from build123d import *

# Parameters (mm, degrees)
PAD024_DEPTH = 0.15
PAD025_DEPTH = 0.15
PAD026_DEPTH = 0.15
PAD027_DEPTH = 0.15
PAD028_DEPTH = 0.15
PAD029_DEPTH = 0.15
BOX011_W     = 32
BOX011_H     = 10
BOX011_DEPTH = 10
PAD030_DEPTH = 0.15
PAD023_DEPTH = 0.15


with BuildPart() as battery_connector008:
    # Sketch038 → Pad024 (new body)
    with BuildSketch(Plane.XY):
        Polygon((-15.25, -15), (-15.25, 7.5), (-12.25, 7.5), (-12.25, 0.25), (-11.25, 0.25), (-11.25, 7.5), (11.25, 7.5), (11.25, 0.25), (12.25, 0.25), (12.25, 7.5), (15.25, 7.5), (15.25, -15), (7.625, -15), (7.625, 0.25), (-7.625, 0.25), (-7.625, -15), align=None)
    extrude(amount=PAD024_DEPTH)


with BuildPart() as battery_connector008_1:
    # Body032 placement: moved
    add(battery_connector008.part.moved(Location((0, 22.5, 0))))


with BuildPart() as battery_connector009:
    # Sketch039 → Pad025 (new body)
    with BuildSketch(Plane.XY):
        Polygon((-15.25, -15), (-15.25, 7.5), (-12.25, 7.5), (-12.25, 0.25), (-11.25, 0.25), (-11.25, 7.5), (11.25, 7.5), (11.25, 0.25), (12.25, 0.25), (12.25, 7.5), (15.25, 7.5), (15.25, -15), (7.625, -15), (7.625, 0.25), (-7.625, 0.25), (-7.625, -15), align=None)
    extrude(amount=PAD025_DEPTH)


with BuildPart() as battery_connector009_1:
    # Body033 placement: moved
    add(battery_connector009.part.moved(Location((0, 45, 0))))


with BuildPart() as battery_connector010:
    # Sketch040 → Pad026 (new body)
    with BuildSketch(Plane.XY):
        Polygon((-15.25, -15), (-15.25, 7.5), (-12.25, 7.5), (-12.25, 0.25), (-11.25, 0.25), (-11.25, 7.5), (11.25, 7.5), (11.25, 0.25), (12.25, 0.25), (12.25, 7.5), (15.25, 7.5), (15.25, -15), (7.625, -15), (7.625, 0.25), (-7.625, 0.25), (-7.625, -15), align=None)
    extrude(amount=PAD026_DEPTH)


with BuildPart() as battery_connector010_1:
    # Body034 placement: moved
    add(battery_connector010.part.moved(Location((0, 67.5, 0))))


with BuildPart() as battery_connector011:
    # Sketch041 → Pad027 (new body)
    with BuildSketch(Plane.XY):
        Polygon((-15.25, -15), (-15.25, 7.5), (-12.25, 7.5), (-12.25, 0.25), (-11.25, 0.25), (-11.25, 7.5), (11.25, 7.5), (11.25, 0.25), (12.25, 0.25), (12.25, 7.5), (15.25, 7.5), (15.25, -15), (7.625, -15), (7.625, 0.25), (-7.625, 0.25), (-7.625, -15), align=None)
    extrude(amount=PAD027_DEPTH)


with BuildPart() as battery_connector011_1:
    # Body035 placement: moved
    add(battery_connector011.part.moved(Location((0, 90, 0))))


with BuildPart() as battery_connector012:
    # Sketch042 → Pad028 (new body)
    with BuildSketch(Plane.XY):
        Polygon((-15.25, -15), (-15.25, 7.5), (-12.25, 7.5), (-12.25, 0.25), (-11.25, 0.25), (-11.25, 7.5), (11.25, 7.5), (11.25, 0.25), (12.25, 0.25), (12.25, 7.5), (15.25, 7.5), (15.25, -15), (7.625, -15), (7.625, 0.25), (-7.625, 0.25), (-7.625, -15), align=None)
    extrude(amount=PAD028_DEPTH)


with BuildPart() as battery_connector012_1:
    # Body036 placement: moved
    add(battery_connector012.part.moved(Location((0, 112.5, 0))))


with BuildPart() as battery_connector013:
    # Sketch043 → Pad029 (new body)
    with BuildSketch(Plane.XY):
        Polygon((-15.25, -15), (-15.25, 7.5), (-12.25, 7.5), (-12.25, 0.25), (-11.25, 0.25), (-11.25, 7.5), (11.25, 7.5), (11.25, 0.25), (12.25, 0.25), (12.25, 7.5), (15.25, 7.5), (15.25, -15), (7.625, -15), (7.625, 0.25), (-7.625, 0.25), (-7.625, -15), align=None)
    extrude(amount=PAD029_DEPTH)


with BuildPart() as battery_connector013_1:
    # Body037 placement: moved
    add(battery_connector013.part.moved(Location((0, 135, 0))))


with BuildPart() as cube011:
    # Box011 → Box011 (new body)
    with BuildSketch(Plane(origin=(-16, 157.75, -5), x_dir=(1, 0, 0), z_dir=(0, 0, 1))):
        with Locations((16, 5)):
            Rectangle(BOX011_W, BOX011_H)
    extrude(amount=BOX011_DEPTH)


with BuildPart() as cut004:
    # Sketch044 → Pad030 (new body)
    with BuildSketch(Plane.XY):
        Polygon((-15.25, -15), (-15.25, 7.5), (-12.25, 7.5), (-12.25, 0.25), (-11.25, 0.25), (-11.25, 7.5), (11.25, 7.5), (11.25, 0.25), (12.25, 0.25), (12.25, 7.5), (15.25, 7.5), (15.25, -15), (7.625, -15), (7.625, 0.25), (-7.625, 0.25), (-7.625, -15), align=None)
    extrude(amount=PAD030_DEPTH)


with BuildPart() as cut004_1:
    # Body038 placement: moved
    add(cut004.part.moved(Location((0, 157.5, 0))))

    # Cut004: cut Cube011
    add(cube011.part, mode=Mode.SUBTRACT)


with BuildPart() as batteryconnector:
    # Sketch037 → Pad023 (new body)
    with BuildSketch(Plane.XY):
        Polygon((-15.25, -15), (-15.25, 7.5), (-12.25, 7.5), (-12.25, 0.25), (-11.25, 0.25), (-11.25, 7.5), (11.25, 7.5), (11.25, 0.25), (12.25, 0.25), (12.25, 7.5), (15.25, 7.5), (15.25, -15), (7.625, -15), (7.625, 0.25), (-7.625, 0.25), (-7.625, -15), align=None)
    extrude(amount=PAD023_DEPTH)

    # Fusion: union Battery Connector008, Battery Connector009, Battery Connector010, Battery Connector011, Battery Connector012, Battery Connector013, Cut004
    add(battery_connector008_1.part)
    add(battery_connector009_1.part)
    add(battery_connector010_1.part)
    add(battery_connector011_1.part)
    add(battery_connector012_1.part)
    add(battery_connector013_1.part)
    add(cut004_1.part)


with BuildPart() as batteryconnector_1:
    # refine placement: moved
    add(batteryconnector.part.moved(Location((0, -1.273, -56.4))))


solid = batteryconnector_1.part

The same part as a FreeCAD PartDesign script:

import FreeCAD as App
import Part
import Sketcher
from FreeCAD import Vector
Q = App.Units.Quantity

doc = App.newDocument("Part")
params = doc.addObject("Spreadsheet::Sheet", "Params")
for row, (alias, value) in enumerate([
    ("sketch1_width", "3 mm"),
    ("sketch1_width2", "1 mm"),
    ("sketch1_width3", "22.5 mm"),
    ("sketch1_width4", "15.25 mm"),
    ("pad1_length", "0.15 mm"),
    ("sketch2_width", "3 mm"),
    ("sketch2_width2", "1 mm"),
    ("sketch2_width3", "22.5 mm"),
    ("sketch2_width4", "15.25 mm"),
    ("pad2_length", "0.15 mm"),
    ("sketch3_width", "3 mm"),
    ("sketch3_width2", "1 mm"),
    ("sketch3_width3", "22.5 mm"),
    ("sketch3_width4", "15.25 mm"),
    ("pad3_length", "0.15 mm"),
    ("sketch4_width", "3 mm"),
    ("sketch4_width2", "1 mm"),
    ("sketch4_width3", "22.5 mm"),
    ("sketch4_width4", "15.25 mm"),
    ("pad4_length", "0.15 mm"),
    ("sketch5_width", "3 mm"),
    ("sketch5_width2", "1 mm"),
    ("sketch5_width3", "22.5 mm"),
    ("sketch5_width4", "15.25 mm"),
    ("pad5_length", "0.15 mm"),
    ("sketch6_width", "3 mm"),
    ("sketch6_width2", "1 mm"),
    ("sketch6_width3", "22.5 mm"),
    ("sketch6_width4", "15.25 mm"),
    ("pad6_length", "0.15 mm"),
    ("sketch7_width", "32 mm"),
    ("sketch7_height", "10 mm"),
    ("pad7_length", "10 mm"),
    ("sketch8_width", "3 mm"),
    ("sketch8_width2", "1 mm"),
    ("sketch8_width3", "22.5 mm"),
    ("sketch8_width4", "15.25 mm"),
    ("pad8_length", "0.15 mm"),
    ("sketch9_width", "3 mm"),
    ("sketch9_width2", "1 mm"),
    ("sketch9_width3", "22.5 mm"),
    ("sketch9_width4", "15.25 mm"),
    ("pad9_length", "0.15 mm"),
], start=1):
    params.set(f"A{row}", alias)
    params.set(f"B{row}", "=" + value)
    params.setAlias(f"B{row}", alias)

body = doc.addObject("PartDesign::Body", "Body")

# Sketch on XY plane
sketch1 = body.newObject("Sketcher::SketchObject", "Sketch")
sketch1.AttachmentSupport = (doc.getObject("XY_Plane"), [""])
sketch1.MapMode = "FlatFace"
sketch1.addGeometry(Part.LineSegment(Vector(-15.25, 7.5, 0), Vector(-15.25, -15, 0)), False)
sketch1.addGeometry(Part.LineSegment(Vector(-15.25, -15, 0), Vector(-7.625, -15, 0)), False)
sketch1.addGeometry(Part.LineSegment(Vector(-7.625, -15, 0), Vector(-7.625, 0.25, 0)), False)
sketch1.addGeometry(Part.LineSegment(Vector(-7.625, 0.25, 0), Vector(7.625, 0.25, 0)), False)
sketch1.addGeometry(Part.LineSegment(Vector(7.625, 0.25, 0), Vector(7.625, -15, 0)), False)
sketch1.addGeometry(Part.LineSegment(Vector(7.625, -15, 0), Vector(15.25, -15, 0)), False)
sketch1.addGeometry(Part.LineSegment(Vector(15.25, -15, 0), Vector(15.25, 7.5, 0)), False)
sketch1.addGeometry(Part.LineSegment(Vector(15.25, 7.5, 0), Vector(12.25, 7.5, 0)), False)
sketch1.addGeometry(Part.LineSegment(Vector(12.25, 7.5, 0), Vector(12.25, 0.25, 0)), False)
sketch1.addGeometry(Part.LineSegment(Vector(12.25, 0.25, 0), Vector(11.25, 0.25, 0)), False)
sketch1.addGeometry(Part.LineSegment(Vector(11.25, 0.25, 0), Vector(11.25, 7.5, 0)), False)
sketch1.addGeometry(Part.LineSegment(Vector(11.25, 7.5, 0), Vector(-11.25, 7.5, 0)), False)
sketch1.addGeometry(Part.LineSegment(Vector(-11.25, 7.5, 0), Vector(-11.25, 0.25, 0)), False)
sketch1.addGeometry(Part.LineSegment(Vector(-11.25, 0.25, 0), Vector(-12.25, 0.25, 0)), False)
sketch1.addGeometry(Part.LineSegment(Vector(-12.25, 0.25, 0), Vector(-12.25, 7.5, 0)), False)
sketch1.addGeometry(Part.LineSegment(Vector(-12.25, 7.5, 0), Vector(-15.25, 7.5, 0)), False)
sketch1.addConstraint(Sketcher.Constraint("Coincident", 0, 2, 1, 1))
sketch1.addConstraint(Sketcher.Constraint("Coincident", 1, 2, 2, 1))
sketch1.addConstraint(Sketcher.Constraint("Coincident", 2, 2, 3, 1))
sketch1.addConstraint(Sketcher.Constraint("Coincident", 3, 2, 4, 1))
sketch1.addConstraint(Sketcher.Constraint("Coincident", 4, 2, 5, 1))
sketch1.addConstraint(Sketcher.Constraint("Coincident", 5, 2, 6, 1))
sketch1.addConstraint(Sketcher.Constraint("Coincident", 6, 2, 7, 1))
sketch1.addConstraint(Sketcher.Constraint("Coincident", 7, 2, 8, 1))
sketch1.addConstraint(Sketcher.Constraint("Coincident", 8, 2, 9, 1))
sketch1.addConstraint(Sketcher.Constraint("Coincident", 9, 2, 10, 1))
sketch1.addConstraint(Sketcher.Constraint("Coincident", 10, 2, 11, 1))
sketch1.addConstraint(Sketcher.Constraint("Coincident", 11, 2, 12, 1))
sketch1.addConstraint(Sketcher.Constraint("Coincident", 12, 2, 13, 1))
sketch1.addConstraint(Sketcher.Constraint("Coincident", 13, 2, 14, 1))
sketch1.addConstraint(Sketcher.Constraint("Coincident", 14, 2, 15, 1))
sketch1.addConstraint(Sketcher.Constraint("Coincident", 15, 2, 0, 1))
sketch1.addConstraint(Sketcher.Constraint("Vertical", 0))
sketch1.addConstraint(Sketcher.Constraint("Horizontal", 1))
sketch1.addConstraint(Sketcher.Constraint("Vertical", 2))
sketch1.addConstraint(Sketcher.Constraint("Horizontal", 3))
sketch1.addConstraint(Sketcher.Constraint("Vertical", 4))
sketch1.addConstraint(Sketcher.Constraint("Horizontal", 5))
sketch1.addConstraint(Sketcher.Constraint("Vertical", 6))
sketch1.addConstraint(Sketcher.Constraint("Horizontal", 7))
sketch1.addConstraint(Sketcher.Constraint("Vertical", 8))
sketch1.addConstraint(Sketcher.Constraint("Horizontal", 9))
sketch1.addConstraint(Sketcher.Constraint("Vertical", 10))
sketch1.addConstraint(Sketcher.Constraint("Horizontal", 11))
sketch1.addConstraint(Sketcher.Constraint("Vertical", 12))
sketch1.addConstraint(Sketcher.Constraint("Horizontal", 13))
sketch1.addConstraint(Sketcher.Constraint("Vertical", 14))
sketch1.addConstraint(Sketcher.Constraint("Horizontal", 15))
sketch1.addConstraint(Sketcher.Constraint("Symmetric", 1, 2, 4, 2, -2))
sketch1.addConstraint(Sketcher.Constraint("Symmetric", 9, 2, 12, 2, -2))
sketch1.addConstraint(Sketcher.Constraint("Symmetric", 7, 2, 14, 2, -2))
sketch1.addConstraint(Sketcher.Constraint("Horizontal", 3, 2, 8, 2))
sketch1.addConstraint(Sketcher.Constraint("Horizontal", 7, 2, 10, 2))
sketch1.addConstraint(Sketcher.Constraint("Equal", 1, 5))
sketch1.addConstraint(Sketcher.Constraint("Equal", 11, 0))
sketch1.addConstraint(Sketcher.Constraint("Equal", 3, 2))
sketch1.addConstraint(Sketcher.Constraint("DistanceX", 7, 2, 7, 1, Q("3 mm")))
sketch1.addConstraint(Sketcher.Constraint("DistanceX", 9, 2, 9, 1, Q("1 mm")))
sketch1.addConstraint(Sketcher.Constraint("DistanceX", 11, 2, 11, 1, Q("22.5 mm")))
sketch1.addConstraint(Sketcher.Constraint("DistanceY", 0, 2, -1, 1, Q("15 mm")))
sketch1.addConstraint(Sketcher.Constraint("DistanceX", 3, 1, 3, 2, Q("15.25 mm")))
sketch1.setExpression("Constraints[40]", "Params.sketch1_width")
sketch1.setExpression("Constraints[41]", "Params.sketch1_width2")
sketch1.setExpression("Constraints[42]", "Params.sketch1_width3")
sketch1.setExpression("Constraints[44]", "Params.sketch1_width4")
pad1 = body.newObject("PartDesign::Pad", "Pad")
pad1.Profile = sketch1
pad1.setExpression("Length", "Params.pad1_length")
body2 = doc.addObject("PartDesign::Body", "Body001")
doc.recompute()

body.Placement = App.Placement(Vector(0, 22.5, 0), App.Rotation(Vector(0, 0, 1), 0))
boolean = body2.newObject("PartDesign::Boolean", "Boolean")
boolean.Type = "Fuse"
boolean.addObjects([body])
body3 = doc.addObject("PartDesign::Body", "Body002")

# Sketch on XY plane
sketch2 = body3.newObject("Sketcher::SketchObject", "Sketch001")
sketch2.AttachmentSupport = (doc.getObject("XY_Plane002"), [""])
sketch2.MapMode = "FlatFace"
sketch2.addGeometry(Part.LineSegment(Vector(-15.25, 7.5, 0), Vector(-15.25, -15, 0)), False)
sketch2.addGeometry(Part.LineSegment(Vector(-15.25, -15, 0), Vector(-7.625, -15, 0)), False)
sketch2.addGeometry(Part.LineSegment(Vector(-7.625, -15, 0), Vector(-7.625, 0.25, 0)), False)
sketch2.addGeometry(Part.LineSegment(Vector(-7.625, 0.25, 0), Vector(7.625, 0.25, 0)), False)
sketch2.addGeometry(Part.LineSegment(Vector(7.625, 0.25, 0), Vector(7.625, -15, 0)), False)
sketch2.addGeometry(Part.LineSegment(Vector(7.625, -15, 0), Vector(15.25, -15, 0)), False)
sketch2.addGeometry(Part.LineSegment(Vector(15.25, -15, 0), Vector(15.25, 7.5, 0)), False)
sketch2.addGeometry(Part.LineSegment(Vector(15.25, 7.5, 0), Vector(12.25, 7.5, 0)), False)
sketch2.addGeometry(Part.LineSegment(Vector(12.25, 7.5, 0), Vector(12.25, 0.25, 0)), False)
sketch2.addGeometry(Part.LineSegment(Vector(12.25, 0.25, 0), Vector(11.25, 0.25, 0)), False)
sketch2.addGeometry(Part.LineSegment(Vector(11.25, 0.25, 0), Vector(11.25, 7.5, 0)), False)
sketch2.addGeometry(Part.LineSegment(Vector(11.25, 7.5, 0), Vector(-11.25, 7.5, 0)), False)
sketch2.addGeometry(Part.LineSegment(Vector(-11.25, 7.5, 0), Vector(-11.25, 0.25, 0)), False)
sketch2.addGeometry(Part.LineSegment(Vector(-11.25, 0.25, 0), Vector(-12.25, 0.25, 0)), False)
sketch2.addGeometry(Part.LineSegment(Vector(-12.25, 0.25, 0), Vector(-12.25, 7.5, 0)), False)
sketch2.addGeometry(Part.LineSegment(Vector(-12.25, 7.5, 0), Vector(-15.25, 7.5, 0)), False)
sketch2.addConstraint(Sketcher.Constraint("Coincident", 0, 2, 1, 1))
sketch2.addConstraint(Sketcher.Constraint("Coincident", 1, 2, 2, 1))
sketch2.addConstraint(Sketcher.Constraint("Coincident", 2, 2, 3, 1))
sketch2.addConstraint(Sketcher.Constraint("Coincident", 3, 2, 4, 1))
sketch2.addConstraint(Sketcher.Constraint("Coincident", 4, 2, 5, 1))
sketch2.addConstraint(Sketcher.Constraint("Coincident", 5, 2, 6, 1))
sketch2.addConstraint(Sketcher.Constraint("Coincident", 6, 2, 7, 1))
sketch2.addConstraint(Sketcher.Constraint("Coincident", 7, 2, 8, 1))
sketch2.addConstraint(Sketcher.Constraint("Coincident", 8, 2, 9, 1))
sketch2.addConstraint(Sketcher.Constraint("Coincident", 9, 2, 10, 1))
sketch2.addConstraint(Sketcher.Constraint("Coincident", 10, 2, 11, 1))
sketch2.addConstraint(Sketcher.Constraint("Coincident", 11, 2, 12, 1))
sketch2.addConstraint(Sketcher.Constraint("Coincident", 12, 2, 13, 1))
sketch2.addConstraint(Sketcher.Constraint("Coincident", 13, 2, 14, 1))
sketch2.addConstraint(Sketcher.Constraint("Coincident", 14, 2, 15, 1))
sketch2.addConstraint(Sketcher.Constraint("Coincident", 15, 2, 0, 1))
sketch2.addConstraint(Sketcher.Constraint("Vertical", 0))
sketch2.addConstraint(Sketcher.Constraint("Horizontal", 1))
sketch2.addConstraint(Sketcher.Constraint("Vertical", 2))
sketch2.addConstraint(Sketcher.Constraint("Horizontal", 3))
sketch2.addConstraint(Sketcher.Constraint("Vertical", 4))
sketch2.addConstraint(Sketcher.Constraint("Horizontal", 5))
sketch2.addConstraint(Sketcher.Constraint("Vertical", 6))
sketch2.addConstraint(Sketcher.Constraint("Horizontal", 7))
sketch2.addConstraint(Sketcher.Constraint("Vertical", 8))
sketch2.addConstraint(Sketcher.Constraint("Horizontal", 9))
sketch2.addConstraint(Sketcher.Constraint("Vertical", 10))
sketch2.addConstraint(Sketcher.Constraint("Horizontal", 11))
sketch2.addConstraint(Sketcher.Constraint("Vertical", 12))
sketch2.addConstraint(Sketcher.Constraint("Horizontal", 13))
sketch2.addConstraint(Sketcher.Constraint("Vertical", 14))
sketch2.addConstraint(Sketcher.Constraint("Horizontal", 15))
sketch2.addConstraint(Sketcher.Constraint("Symmetric", 1, 2, 4, 2, -2))
sketch2.addConstraint(Sketcher.Constraint("Symmetric", 9, 2, 12, 2, -2))
sketch2.addConstraint(Sketcher.Constraint("Symmetric", 7, 2, 14, 2, -2))
sketch2.addConstraint(Sketcher.Constraint("Horizontal", 3, 2, 8, 2))
sketch2.addConstraint(Sketcher.Constraint("Horizontal", 7, 2, 10, 2))
sketch2.addConstraint(Sketcher.Constraint("Equal", 1, 5))
sketch2.addConstraint(Sketcher.Constraint("Equal", 11, 0))
sketch2.addConstraint(Sketcher.Constraint("Equal", 3, 2))
sketch2.addConstraint(Sketcher.Constraint("DistanceX", 7, 2, 7, 1, Q("3 mm")))
sketch2.addConstraint(Sketcher.Constraint("DistanceX", 9, 2, 9, 1, Q("1 mm")))
sketch2.addConstraint(Sketcher.Constraint("DistanceX", 11, 2, 11, 1, Q("22.5 mm")))
sketch2.addConstraint(Sketcher.Constraint("DistanceY", 0, 2, -1, 1, Q("15 mm")))
sketch2.addConstraint(Sketcher.Constraint("DistanceX", 3, 1, 3, 2, Q("15.25 mm")))
sketch2.setExpression("Constraints[40]", "Params.sketch2_width")
sketch2.setExpression("Constraints[41]", "Params.sketch2_width2")
sketch2.setExpression("Constraints[42]", "Params.sketch2_width3")
sketch2.setExpression("Constraints[44]", "Params.sketch2_width4")
pad2 = body3.newObject("PartDesign::Pad", "Pad001")
pad2.Profile = sketch2
pad2.setExpression("Length", "Params.pad2_length")
body4 = doc.addObject("PartDesign::Body", "Body003")
doc.recompute()

body3.Placement = App.Placement(Vector(0, 45, 0), App.Rotation(Vector(0, 0, 1), 0))
boolean2 = body4.newObject("PartDesign::Boolean", "Boolean001")
boolean2.Type = "Fuse"
boolean2.addObjects([body3])
body5 = doc.addObject("PartDesign::Body", "Body004")

# Sketch on XY plane
sketch3 = body5.newObject("Sketcher::SketchObject", "Sketch002")
sketch3.AttachmentSupport = (doc.getObject("XY_Plane004"), [""])
sketch3.MapMode = "FlatFace"
sketch3.addGeometry(Part.LineSegment(Vector(-15.25, 7.5, 0), Vector(-15.25, -15, 0)), False)
sketch3.addGeometry(Part.LineSegment(Vector(-15.25, -15, 0), Vector(-7.625, -15, 0)), False)
sketch3.addGeometry(Part.LineSegment(Vector(-7.625, -15, 0), Vector(-7.625, 0.25, 0)), False)
sketch3.addGeometry(Part.LineSegment(Vector(-7.625, 0.25, 0), Vector(7.625, 0.25, 0)), False)
sketch3.addGeometry(Part.LineSegment(Vector(7.625, 0.25, 0), Vector(7.625, -15, 0)), False)
sketch3.addGeometry(Part.LineSegment(Vector(7.625, -15, 0), Vector(15.25, -15, 0)), False)
sketch3.addGeometry(Part.LineSegment(Vector(15.25, -15, 0), Vector(15.25, 7.5, 0)), False)
sketch3.addGeometry(Part.LineSegment(Vector(15.25, 7.5, 0), Vector(12.25, 7.5, 0)), False)
sketch3.addGeometry(Part.LineSegment(Vector(12.25, 7.5, 0), Vector(12.25, 0.25, 0)), False)
sketch3.addGeometry(Part.LineSegment(Vector(12.25, 0.25, 0), Vector(11.25, 0.25, 0)), False)
sketch3.addGeometry(Part.LineSegment(Vector(11.25, 0.25, 0), Vector(11.25, 7.5, 0)), False)
sketch3.addGeometry(Part.LineSegment(Vector(11.25, 7.5, 0), Vector(-11.25, 7.5, 0)), False)
sketch3.addGeometry(Part.LineSegment(Vector(-11.25, 7.5, 0), Vector(-11.25, 0.25, 0)), False)
sketch3.addGeometry(Part.LineSegment(Vector(-11.25, 0.25, 0), Vector(-12.25, 0.25, 0)), False)
sketch3.addGeometry(Part.LineSegment(Vector(-12.25, 0.25, 0), Vector(-12.25, 7.5, 0)), False)
sketch3.addGeometry(Part.LineSegment(Vector(-12.25, 7.5, 0), Vector(-15.25, 7.5, 0)), False)
sketch3.addConstraint(Sketcher.Constraint("Coincident", 0, 2, 1, 1))
sketch3.addConstraint(Sketcher.Constraint("Coincident", 1, 2, 2, 1))
sketch3.addConstraint(Sketcher.Constraint("Coincident", 2, 2, 3, 1))
sketch3.addConstraint(Sketcher.Constraint("Coincident", 3, 2, 4, 1))
sketch3.addConstraint(Sketcher.Constraint("Coincident", 4, 2, 5, 1))
sketch3.addConstraint(Sketcher.Constraint("Coincident", 5, 2, 6, 1))
sketch3.addConstraint(Sketcher.Constraint("Coincident", 6, 2, 7, 1))
sketch3.addConstraint(Sketcher.Constraint("Coincident", 7, 2, 8, 1))
sketch3.addConstraint(Sketcher.Constraint("Coincident", 8, 2, 9, 1))
sketch3.addConstraint(Sketcher.Constraint("Coincident", 9, 2, 10, 1))
sketch3.addConstraint(Sketcher.Constraint("Coincident", 10, 2, 11, 1))
sketch3.addConstraint(Sketcher.Constraint("Coincident", 11, 2, 12, 1))
sketch3.addConstraint(Sketcher.Constraint("Coincident", 12, 2, 13, 1))
sketch3.addConstraint(Sketcher.Constraint("Coincident", 13, 2, 14, 1))
sketch3.addConstraint(Sketcher.Constraint("Coincident", 14, 2, 15, 1))
sketch3.addConstraint(Sketcher.Constraint("Coincident", 15, 2, 0, 1))
sketch3.addConstraint(Sketcher.Constraint("Vertical", 0))
sketch3.addConstraint(Sketcher.Constraint("Horizontal", 1))
sketch3.addConstraint(Sketcher.Constraint("Vertical", 2))
sketch3.addConstraint(Sketcher.Constraint("Horizontal", 3))
sketch3.addConstraint(Sketcher.Constraint("Vertical", 4))
sketch3.addConstraint(Sketcher.Constraint("Horizontal", 5))
sketch3.addConstraint(Sketcher.Constraint("Vertical", 6))
sketch3.addConstraint(Sketcher.Constraint("Horizontal", 7))
sketch3.addConstraint(Sketcher.Constraint("Vertical", 8))
sketch3.addConstraint(Sketcher.Constraint("Horizontal", 9))
sketch3.addConstraint(Sketcher.Constraint("Vertical", 10))
sketch3.addConstraint(Sketcher.Constraint("Horizontal", 11))
sketch3.addConstraint(Sketcher.Constraint("Vertical", 12))
sketch3.addConstraint(Sketcher.Constraint("Horizontal", 13))
sketch3.addConstraint(Sketcher.Constraint("Vertical", 14))
sketch3.addConstraint(Sketcher.Constraint("Horizontal", 15))
sketch3.addConstraint(Sketcher.Constraint("Symmetric", 1, 2, 4, 2, -2))
sketch3.addConstraint(Sketcher.Constraint("Symmetric", 9, 2, 12, 2, -2))
sketch3.addConstraint(Sketcher.Constraint("Symmetric", 7, 2, 14, 2, -2))
sketch3.addConstraint(Sketcher.Constraint("Horizontal", 3, 2, 8, 2))
sketch3.addConstraint(Sketcher.Constraint("Horizontal", 7, 2, 10, 2))
sketch3.addConstraint(Sketcher.Constraint("Equal", 1, 5))
sketch3.addConstraint(Sketcher.Constraint("Equal", 11, 0))
sketch3.addConstraint(Sketcher.Constraint("Equal", 3, 2))
sketch3.addConstraint(Sketcher.Constraint("DistanceX", 7, 2, 7, 1, Q("3 mm")))
sketch3.addConstraint(Sketcher.Constraint("DistanceX", 9, 2, 9, 1, Q("1 mm")))
sketch3.addConstraint(Sketcher.Constraint("DistanceX", 11, 2, 11, 1, Q("22.5 mm")))
sketch3.addConstraint(Sketcher.Constraint("DistanceY", 0, 2, -1, 1, Q("15 mm")))
sketch3.addConstraint(Sketcher.Constraint("DistanceX", 3, 1, 3, 2, Q("15.25 mm")))
sketch3.setExpression("Constraints[40]", "Params.sketch3_width")
sketch3.setExpression("Constraints[41]", "Params.sketch3_width2")
sketch3.setExpression("Constraints[42]", "Params.sketch3_width3")
sketch3.setExpression("Constraints[44]", "Params.sketch3_width4")
pad3 = body5.newObject("PartDesign::Pad", "Pad002")
pad3.Profile = sketch3
pad3.setExpression("Length", "Params.pad3_length")
body6 = doc.addObject("PartDesign::Body", "Body005")
doc.recompute()

body5.Placement = App.Placement(Vector(0, 67.5, 0), App.Rotation(Vector(0, 0, 1), 0))
boolean3 = body6.newObject("PartDesign::Boolean", "Boolean002")
boolean3.Type = "Fuse"
boolean3.addObjects([body5])
body7 = doc.addObject("PartDesign::Body", "Body006")

# Sketch on XY plane
sketch4 = body7.newObject("Sketcher::SketchObject", "Sketch003")
sketch4.AttachmentSupport = (doc.getObject("XY_Plane006"), [""])
sketch4.MapMode = "FlatFace"
sketch4.addGeometry(Part.LineSegment(Vector(-15.25, 7.5, 0), Vector(-15.25, -15, 0)), False)
sketch4.addGeometry(Part.LineSegment(Vector(-15.25, -15, 0), Vector(-7.625, -15, 0)), False)
sketch4.addGeometry(Part.LineSegment(Vector(-7.625, -15, 0), Vector(-7.625, 0.25, 0)), False)
sketch4.addGeometry(Part.LineSegment(Vector(-7.625, 0.25, 0), Vector(7.625, 0.25, 0)), False)
sketch4.addGeometry(Part.LineSegment(Vector(7.625, 0.25, 0), Vector(7.625, -15, 0)), False)
sketch4.addGeometry(Part.LineSegment(Vector(7.625, -15, 0), Vector(15.25, -15, 0)), False)
sketch4.addGeometry(Part.LineSegment(Vector(15.25, -15, 0), Vector(15.25, 7.5, 0)), False)
sketch4.addGeometry(Part.LineSegment(Vector(15.25, 7.5, 0), Vector(12.25, 7.5, 0)), False)
sketch4.addGeometry(Part.LineSegment(Vector(12.25, 7.5, 0), Vector(12.25, 0.25, 0)), False)
sketch4.addGeometry(Part.LineSegment(Vector(12.25, 0.25, 0), Vector(11.25, 0.25, 0)), False)
sketch4.addGeometry(Part.LineSegment(Vector(11.25, 0.25, 0), Vector(11.25, 7.5, 0)), False)
sketch4.addGeometry(Part.LineSegment(Vector(11.25, 7.5, 0), Vector(-11.25, 7.5, 0)), False)
sketch4.addGeometry(Part.LineSegment(Vector(-11.25, 7.5, 0), Vector(-11.25, 0.25, 0)), False)
sketch4.addGeometry(Part.LineSegment(Vector(-11.25, 0.25, 0), Vector(-12.25, 0.25, 0)), False)
sketch4.addGeometry(Part.LineSegment(Vector(-12.25, 0.25, 0), Vector(-12.25, 7.5, 0)), False)
sketch4.addGeometry(Part.LineSegment(Vector(-12.25, 7.5, 0), Vector(-15.25, 7.5, 0)), False)
sketch4.addConstraint(Sketcher.Constraint("Coincident", 0, 2, 1, 1))
sketch4.addConstraint(Sketcher.Constraint("Coincident", 1, 2, 2, 1))
sketch4.addConstraint(Sketcher.Constraint("Coincident", 2, 2, 3, 1))
sketch4.addConstraint(Sketcher.Constraint("Coincident", 3, 2, 4, 1))
sketch4.addConstraint(Sketcher.Constraint("Coincident", 4, 2, 5, 1))
sketch4.addConstraint(Sketcher.Constraint("Coincident", 5, 2, 6, 1))
sketch4.addConstraint(Sketcher.Constraint("Coincident", 6, 2, 7, 1))
sketch4.addConstraint(Sketcher.Constraint("Coincident", 7, 2, 8, 1))
sketch4.addConstraint(Sketcher.Constraint("Coincident", 8, 2, 9, 1))
sketch4.addConstraint(Sketcher.Constraint("Coincident", 9, 2, 10, 1))
sketch4.addConstraint(Sketcher.Constraint("Coincident", 10, 2, 11, 1))
sketch4.addConstraint(Sketcher.Constraint("Coincident", 11, 2, 12, 1))
sketch4.addConstraint(Sketcher.Constraint("Coincident", 12, 2, 13, 1))
sketch4.addConstraint(Sketcher.Constraint("Coincident", 13, 2, 14, 1))
sketch4.addConstraint(Sketcher.Constraint("Coincident", 14, 2, 15, 1))
sketch4.addConstraint(Sketcher.Constraint("Coincident", 15, 2, 0, 1))
sketch4.addConstraint(Sketcher.Constraint("Vertical", 0))
sketch4.addConstraint(Sketcher.Constraint("Horizontal", 1))
sketch4.addConstraint(Sketcher.Constraint("Vertical", 2))
sketch4.addConstraint(Sketcher.Constraint("Horizontal", 3))
sketch4.addConstraint(Sketcher.Constraint("Vertical", 4))
sketch4.addConstraint(Sketcher.Constraint("Horizontal", 5))
sketch4.addConstraint(Sketcher.Constraint("Vertical", 6))
sketch4.addConstraint(Sketcher.Constraint("Horizontal", 7))
sketch4.addConstraint(Sketcher.Constraint("Vertical", 8))
sketch4.addConstraint(Sketcher.Constraint("Horizontal", 9))
sketch4.addConstraint(Sketcher.Constraint("Vertical", 10))
sketch4.addConstraint(Sketcher.Constraint("Horizontal", 11))
sketch4.addConstraint(Sketcher.Constraint("Vertical", 12))
sketch4.addConstraint(Sketcher.Constraint("Horizontal", 13))
sketch4.addConstraint(Sketcher.Constraint("Vertical", 14))
sketch4.addConstraint(Sketcher.Constraint("Horizontal", 15))
sketch4.addConstraint(Sketcher.Constraint("Symmetric", 1, 2, 4, 2, -2))
sketch4.addConstraint(Sketcher.Constraint("Symmetric", 9, 2, 12, 2, -2))
sketch4.addConstraint(Sketcher.Constraint("Symmetric", 7, 2, 14, 2, -2))
sketch4.addConstraint(Sketcher.Constraint("Horizontal", 3, 2, 8, 2))
sketch4.addConstraint(Sketcher.Constraint("Horizontal", 7, 2, 10, 2))
sketch4.addConstraint(Sketcher.Constraint("Equal", 1, 5))
sketch4.addConstraint(Sketcher.Constraint("Equal", 11, 0))
sketch4.addConstraint(Sketcher.Constraint("Equal", 3, 2))
sketch4.addConstraint(Sketcher.Constraint("DistanceX", 7, 2, 7, 1, Q("3 mm")))
sketch4.addConstraint(Sketcher.Constraint("DistanceX", 9, 2, 9, 1, Q("1 mm")))
sketch4.addConstraint(Sketcher.Constraint("DistanceX", 11, 2, 11, 1, Q("22.5 mm")))
sketch4.addConstraint(Sketcher.Constraint("DistanceY", 0, 2, -1, 1, Q("15 mm")))
sketch4.addConstraint(Sketcher.Constraint("DistanceX", 3, 1, 3, 2, Q("15.25 mm")))
sketch4.setExpression("Constraints[40]", "Params.sketch4_width")
sketch4.setExpression("Constraints[41]", "Params.sketch4_width2")
sketch4.setExpression("Constraints[42]", "Params.sketch4_width3")
sketch4.setExpression("Constraints[44]", "Params.sketch4_width4")
pad4 = body7.newObject("PartDesign::Pad", "Pad003")
pad4.Profile = sketch4
pad4.setExpression("Length", "Params.pad4_length")
body8 = doc.addObject("PartDesign::Body", "Body007")
doc.recompute()

body7.Placement = App.Placement(Vector(0, 90, 0), App.Rotation(Vector(0, 0, 1), 0))
boolean4 = body8.newObject("PartDesign::Boolean", "Boolean003")
boolean4.Type = "Fuse"
boolean4.addObjects([body7])
body9 = doc.addObject("PartDesign::Body", "Body008")

# Sketch on XY plane
sketch5 = body9.newObject("Sketcher::SketchObject", "Sketch004")
sketch5.AttachmentSupport = (doc.getObject("XY_Plane008"), [""])
sketch5.MapMode = "FlatFace"
sketch5.addGeometry(Part.LineSegment(Vector(-15.25, 7.5, 0), Vector(-15.25, -15, 0)), False)
sketch5.addGeometry(Part.LineSegment(Vector(-15.25, -15, 0), Vector(-7.625, -15, 0)), False)
sketch5.addGeometry(Part.LineSegment(Vector(-7.625, -15, 0), Vector(-7.625, 0.25, 0)), False)
sketch5.addGeometry(Part.LineSegment(Vector(-7.625, 0.25, 0), Vector(7.625, 0.25, 0)), False)
sketch5.addGeometry(Part.LineSegment(Vector(7.625, 0.25, 0), Vector(7.625, -15, 0)), False)
sketch5.addGeometry(Part.LineSegment(Vector(7.625, -15, 0), Vector(15.25, -15, 0)), False)
sketch5.addGeometry(Part.LineSegment(Vector(15.25, -15, 0), Vector(15.25, 7.5, 0)), False)
sketch5.addGeometry(Part.LineSegment(Vector(15.25, 7.5, 0), Vector(12.25, 7.5, 0)), False)
sketch5.addGeometry(Part.LineSegment(Vector(12.25, 7.5, 0), Vector(12.25, 0.25, 0)), False)
sketch5.addGeometry(Part.LineSegment(Vector(12.25, 0.25, 0), Vector(11.25, 0.25, 0)), False)
sketch5.addGeometry(Part.LineSegment(Vector(11.25, 0.25, 0), Vector(11.25, 7.5, 0)), False)
sketch5.addGeometry(Part.LineSegment(Vector(11.25, 7.5, 0), Vector(-11.25, 7.5, 0)), False)
sketch5.addGeometry(Part.LineSegment(Vector(-11.25, 7.5, 0), Vector(-11.25, 0.25, 0)), False)
sketch5.addGeometry(Part.LineSegment(Vector(-11.25, 0.25, 0), Vector(-12.25, 0.25, 0)), False)
sketch5.addGeometry(Part.LineSegment(Vector(-12.25, 0.25, 0), Vector(-12.25, 7.5, 0)), False)
sketch5.addGeometry(Part.LineSegment(Vector(-12.25, 7.5, 0), Vector(-15.25, 7.5, 0)), False)
sketch5.addConstraint(Sketcher.Constraint("Coincident", 0, 2, 1, 1))
sketch5.addConstraint(Sketcher.Constraint("Coincident", 1, 2, 2, 1))
sketch5.addConstraint(Sketcher.Constraint("Coincident", 2, 2, 3, 1))
sketch5.addConstraint(Sketcher.Constraint("Coincident", 3, 2, 4, 1))
sketch5.addConstraint(Sketcher.Constraint("Coincident", 4, 2, 5, 1))
sketch5.addConstraint(Sketcher.Constraint("Coincident", 5, 2, 6, 1))
sketch5.addConstraint(Sketcher.Constraint("Coincident", 6, 2, 7, 1))
sketch5.addConstraint(Sketcher.Constraint("Coincident", 7, 2, 8, 1))
sketch5.addConstraint(Sketcher.Constraint("Coincident", 8, 2, 9, 1))
sketch5.addConstraint(Sketcher.Constraint("Coincident", 9, 2, 10, 1))
sketch5.addConstraint(Sketcher.Constraint("Coincident", 10, 2, 11, 1))
sketch5.addConstraint(Sketcher.Constraint("Coincident", 11, 2, 12, 1))
sketch5.addConstraint(Sketcher.Constraint("Coincident", 12, 2, 13, 1))
sketch5.addConstraint(Sketcher.Constraint("Coincident", 13, 2, 14, 1))
sketch5.addConstraint(Sketcher.Constraint("Coincident", 14, 2, 15, 1))
sketch5.addConstraint(Sketcher.Constraint("Coincident", 15, 2, 0, 1))
sketch5.addConstraint(Sketcher.Constraint("Vertical", 0))
sketch5.addConstraint(Sketcher.Constraint("Horizontal", 1))
sketch5.addConstraint(Sketcher.Constraint("Vertical", 2))
sketch5.addConstraint(Sketcher.Constraint("Horizontal", 3))
sketch5.addConstraint(Sketcher.Constraint("Vertical", 4))
sketch5.addConstraint(Sketcher.Constraint("Horizontal", 5))
sketch5.addConstraint(Sketcher.Constraint("Vertical", 6))
sketch5.addConstraint(Sketcher.Constraint("Horizontal", 7))
sketch5.addConstraint(Sketcher.Constraint("Vertical", 8))
sketch5.addConstraint(Sketcher.Constraint("Horizontal", 9))
sketch5.addConstraint(Sketcher.Constraint("Vertical", 10))
sketch5.addConstraint(Sketcher.Constraint("Horizontal", 11))
sketch5.addConstraint(Sketcher.Constraint("Vertical", 12))
sketch5.addConstraint(Sketcher.Constraint("Horizontal", 13))
sketch5.addConstraint(Sketcher.Constraint("Vertical", 14))
sketch5.addConstraint(Sketcher.Constraint("Horizontal", 15))
sketch5.addConstraint(Sketcher.Constraint("Symmetric", 1, 2, 4, 2, -2))
sketch5.addConstraint(Sketcher.Constraint("Symmetric", 9, 2, 12, 2, -2))
sketch5.addConstraint(Sketcher.Constraint("Symmetric", 7, 2, 14, 2, -2))
sketch5.addConstraint(Sketcher.Constraint("Horizontal", 3, 2, 8, 2))
sketch5.addConstraint(Sketcher.Constraint("Horizontal", 7, 2, 10, 2))
sketch5.addConstraint(Sketcher.Constraint("Equal", 1, 5))
sketch5.addConstraint(Sketcher.Constraint("Equal", 11, 0))
sketch5.addConstraint(Sketcher.Constraint("Equal", 3, 2))
sketch5.addConstraint(Sketcher.Constraint("DistanceX", 7, 2, 7, 1, Q("3 mm")))
sketch5.addConstraint(Sketcher.Constraint("DistanceX", 9, 2, 9, 1, Q("1 mm")))
sketch5.addConstraint(Sketcher.Constraint("DistanceX", 11, 2, 11, 1, Q("22.5 mm")))
sketch5.addConstraint(Sketcher.Constraint("DistanceY", 0, 2, -1, 1, Q("15 mm")))
sketch5.addConstraint(Sketcher.Constraint("DistanceX", 3, 1, 3, 2, Q("15.25 mm")))
sketch5.setExpression("Constraints[40]", "Params.sketch5_width")
sketch5.setExpression("Constraints[41]", "Params.sketch5_width2")
sketch5.setExpression("Constraints[42]", "Params.sketch5_width3")
sketch5.setExpression("Constraints[44]", "Params.sketch5_width4")
pad5 = body9.newObject("PartDesign::Pad", "Pad004")
pad5.Profile = sketch5
pad5.setExpression("Length", "Params.pad5_length")
body10 = doc.addObject("PartDesign::Body", "Body009")
doc.recompute()

body9.Placement = App.Placement(Vector(0, 112.5, 0), App.Rotation(Vector(0, 0, 1), 0))
boolean5 = body10.newObject("PartDesign::Boolean", "Boolean004")
boolean5.Type = "Fuse"
boolean5.addObjects([body9])
body11 = doc.addObject("PartDesign::Body", "Body010")

# Sketch on XY plane
sketch6 = body11.newObject("Sketcher::SketchObject", "Sketch005")
sketch6.AttachmentSupport = (doc.getObject("XY_Plane010"), [""])
sketch6.MapMode = "FlatFace"
sketch6.addGeometry(Part.LineSegment(Vector(-15.25, 7.5, 0), Vector(-15.25, -15, 0)), False)
sketch6.addGeometry(Part.LineSegment(Vector(-15.25, -15, 0), Vector(-7.625, -15, 0)), False)
sketch6.addGeometry(Part.LineSegment(Vector(-7.625, -15, 0), Vector(-7.625, 0.25, 0)), False)
sketch6.addGeometry(Part.LineSegment(Vector(-7.625, 0.25, 0), Vector(7.625, 0.25, 0)), False)
sketch6.addGeometry(Part.LineSegment(Vector(7.625, 0.25, 0), Vector(7.625, -15, 0)), False)
sketch6.addGeometry(Part.LineSegment(Vector(7.625, -15, 0), Vector(15.25, -15, 0)), False)
sketch6.addGeometry(Part.LineSegment(Vector(15.25, -15, 0), Vector(15.25, 7.5, 0)), False)
sketch6.addGeometry(Part.LineSegment(Vector(15.25, 7.5, 0), Vector(12.25, 7.5, 0)), False)
sketch6.addGeometry(Part.LineSegment(Vector(12.25, 7.5, 0), Vector(12.25, 0.25, 0)), False)
sketch6.addGeometry(Part.LineSegment(Vector(12.25, 0.25, 0), Vector(11.25, 0.25, 0)), False)
sketch6.addGeometry(Part.LineSegment(Vector(11.25, 0.25, 0), Vector(11.25, 7.5, 0)), False)
sketch6.addGeometry(Part.LineSegment(Vector(11.25, 7.5, 0), Vector(-11.25, 7.5, 0)), False)
sketch6.addGeometry(Part.LineSegment(Vector(-11.25, 7.5, 0), Vector(-11.25, 0.25, 0)), False)
sketch6.addGeometry(Part.LineSegment(Vector(-11.25, 0.25, 0), Vector(-12.25, 0.25, 0)), False)
sketch6.addGeometry(Part.LineSegment(Vector(-12.25, 0.25, 0), Vector(-12.25, 7.5, 0)), False)
sketch6.addGeometry(Part.LineSegment(Vector(-12.25, 7.5, 0), Vector(-15.25, 7.5, 0)), False)
sketch6.addConstraint(Sketcher.Constraint("Coincident", 0, 2, 1, 1))
sketch6.addConstraint(Sketcher.Constraint("Coincident", 1, 2, 2, 1))
sketch6.addConstraint(Sketcher.Constraint("Coincident", 2, 2, 3, 1))
sketch6.addConstraint(Sketcher.Constraint("Coincident", 3, 2, 4, 1))
sketch6.addConstraint(Sketcher.Constraint("Coincident", 4, 2, 5, 1))
sketch6.addConstraint(Sketcher.Constraint("Coincident", 5, 2, 6, 1))
sketch6.addConstraint(Sketcher.Constraint("Coincident", 6, 2, 7, 1))
sketch6.addConstraint(Sketcher.Constraint("Coincident", 7, 2, 8, 1))
sketch6.addConstraint(Sketcher.Constraint("Coincident", 8, 2, 9, 1))
sketch6.addConstraint(Sketcher.Constraint("Coincident", 9, 2, 10, 1))
sketch6.addConstraint(Sketcher.Constraint("Coincident", 10, 2, 11, 1))
sketch6.addConstraint(Sketcher.Constraint("Coincident", 11, 2, 12, 1))
sketch6.addConstraint(Sketcher.Constraint("Coincident", 12, 2, 13, 1))
sketch6.addConstraint(Sketcher.Constraint("Coincident", 13, 2, 14, 1))
sketch6.addConstraint(Sketcher.Constraint("Coincident", 14, 2, 15, 1))
sketch6.addConstraint(Sketcher.Constraint("Coincident", 15, 2, 0, 1))
sketch6.addConstraint(Sketcher.Constraint("Vertical", 0))
sketch6.addConstraint(Sketcher.Constraint("Horizontal", 1))
sketch6.addConstraint(Sketcher.Constraint("Vertical", 2))
sketch6.addConstraint(Sketcher.Constraint("Horizontal", 3))
sketch6.addConstraint(Sketcher.Constraint("Vertical", 4))
sketch6.addConstraint(Sketcher.Constraint("Horizontal", 5))
sketch6.addConstraint(Sketcher.Constraint("Vertical", 6))
sketch6.addConstraint(Sketcher.Constraint("Horizontal", 7))
sketch6.addConstraint(Sketcher.Constraint("Vertical", 8))
sketch6.addConstraint(Sketcher.Constraint("Horizontal", 9))
sketch6.addConstraint(Sketcher.Constraint("Vertical", 10))
sketch6.addConstraint(Sketcher.Constraint("Horizontal", 11))
sketch6.addConstraint(Sketcher.Constraint("Vertical", 12))
sketch6.addConstraint(Sketcher.Constraint("Horizontal", 13))
sketch6.addConstraint(Sketcher.Constraint("Vertical", 14))
sketch6.addConstraint(Sketcher.Constraint("Horizontal", 15))
sketch6.addConstraint(Sketcher.Constraint("Symmetric", 1, 2, 4, 2, -2))
sketch6.addConstraint(Sketcher.Constraint("Symmetric", 9, 2, 12, 2, -2))
sketch6.addConstraint(Sketcher.Constraint("Symmetric", 7, 2, 14, 2, -2))
sketch6.addConstraint(Sketcher.Constraint("Horizontal", 3, 2, 8, 2))
sketch6.addConstraint(Sketcher.Constraint("Horizontal", 7, 2, 10, 2))
sketch6.addConstraint(Sketcher.Constraint("Equal", 1, 5))
sketch6.addConstraint(Sketcher.Constraint("Equal", 11, 0))
sketch6.addConstraint(Sketcher.Constraint("Equal", 3, 2))
sketch6.addConstraint(Sketcher.Constraint("DistanceX", 7, 2, 7, 1, Q("3 mm")))
sketch6.addConstraint(Sketcher.Constraint("DistanceX", 9, 2, 9, 1, Q("1 mm")))
sketch6.addConstraint(Sketcher.Constraint("DistanceX", 11, 2, 11, 1, Q("22.5 mm")))
sketch6.addConstraint(Sketcher.Constraint("DistanceY", 0, 2, -1, 1, Q("15 mm")))
sketch6.addConstraint(Sketcher.Constraint("DistanceX", 3, 1, 3, 2, Q("15.25 mm")))
sketch6.setExpression("Constraints[40]", "Params.sketch6_width")
sketch6.setExpression("Constraints[41]", "Params.sketch6_width2")
sketch6.setExpression("Constraints[42]", "Params.sketch6_width3")
sketch6.setExpression("Constraints[44]", "Params.sketch6_width4")
pad6 = body11.newObject("PartDesign::Pad", "Pad005")
pad6.Profile = sketch6
pad6.setExpression("Length", "Params.pad6_length")
body12 = doc.addObject("PartDesign::Body", "Body011")
doc.recompute()

body11.Placement = App.Placement(Vector(0, 135, 0), App.Rotation(Vector(0, 0, 1), 0))
boolean6 = body12.newObject("PartDesign::Boolean", "Boolean005")
boolean6.Type = "Fuse"
boolean6.addObjects([body11])
body13 = doc.addObject("PartDesign::Body", "Body012")

# Sketch on XY plane
sketch7 = body13.newObject("Sketcher::SketchObject", "Sketch006")
sketch7.AttachmentSupport = (doc.getObject("XY_Plane012"), [""])
sketch7.MapMode = "FlatFace"
sketch7.AttachmentOffset = App.Placement(Vector(0, 0, -5), App.Rotation())
sketch7.addGeometry(Part.LineSegment(Vector(-16, 167.75, 0), Vector(-16, 157.75, 0)), False)
sketch7.addGeometry(Part.LineSegment(Vector(-16, 157.75, 0), Vector(16, 157.75, 0)), False)
sketch7.addGeometry(Part.LineSegment(Vector(16, 157.75, 0), Vector(16, 167.75, 0)), False)
sketch7.addGeometry(Part.LineSegment(Vector(16, 167.75, 0), Vector(-16, 167.75, 0)), False)
sketch7.addConstraint(Sketcher.Constraint("Coincident", 0, 2, 1, 1))
sketch7.addConstraint(Sketcher.Constraint("Coincident", 1, 2, 2, 1))
sketch7.addConstraint(Sketcher.Constraint("Coincident", 2, 2, 3, 1))
sketch7.addConstraint(Sketcher.Constraint("Coincident", 3, 2, 0, 1))
sketch7.addConstraint(Sketcher.Constraint("Vertical", 0))
sketch7.addConstraint(Sketcher.Constraint("Horizontal", 1))
sketch7.addConstraint(Sketcher.Constraint("Vertical", 2))
sketch7.addConstraint(Sketcher.Constraint("Horizontal", 3))
sketch7.addConstraint(Sketcher.Constraint("DistanceX", 1, 1, 1, 2, Q("32 mm")))
sketch7.addConstraint(Sketcher.Constraint("DistanceY", 0, 2, 0, 1, Q("10 mm")))
sketch7.addConstraint(Sketcher.Constraint("DistanceX", 0, 2, -1, 1, Q("16 mm")))
sketch7.addConstraint(Sketcher.Constraint("DistanceY", -1, 1, 0, 2, Q("157.75 mm")))
sketch7.setExpression("Constraints[8]", "Params.sketch7_width")
sketch7.setExpression("Constraints[9]", "Params.sketch7_height")
pad7 = body13.newObject("PartDesign::Pad", "Pad006")
pad7.Profile = sketch7
pad7.setExpression("Length", "Params.pad7_length")
body14 = doc.addObject("PartDesign::Body", "Body013")

# Sketch on XY plane
sketch8 = body14.newObject("Sketcher::SketchObject", "Sketch007")
sketch8.AttachmentSupport = (doc.getObject("XY_Plane013"), [""])
sketch8.MapMode = "FlatFace"
sketch8.addGeometry(Part.LineSegment(Vector(-15.25, 7.5, 0), Vector(-15.25, -15, 0)), False)
sketch8.addGeometry(Part.LineSegment(Vector(-15.25, -15, 0), Vector(-7.625, -15, 0)), False)
sketch8.addGeometry(Part.LineSegment(Vector(-7.625, -15, 0), Vector(-7.625, 0.25, 0)), False)
sketch8.addGeometry(Part.LineSegment(Vector(-7.625, 0.25, 0), Vector(7.625, 0.25, 0)), False)
sketch8.addGeometry(Part.LineSegment(Vector(7.625, 0.25, 0), Vector(7.625, -15, 0)), False)
sketch8.addGeometry(Part.LineSegment(Vector(7.625, -15, 0), Vector(15.25, -15, 0)), False)
sketch8.addGeometry(Part.LineSegment(Vector(15.25, -15, 0), Vector(15.25, 7.5, 0)), False)
sketch8.addGeometry(Part.LineSegment(Vector(15.25, 7.5, 0), Vector(12.25, 7.5, 0)), False)
sketch8.addGeometry(Part.LineSegment(Vector(12.25, 7.5, 0), Vector(12.25, 0.25, 0)), False)
sketch8.addGeometry(Part.LineSegment(Vector(12.25, 0.25, 0), Vector(11.25, 0.25, 0)), False)
sketch8.addGeometry(Part.LineSegment(Vector(11.25, 0.25, 0), Vector(11.25, 7.5, 0)), False)
sketch8.addGeometry(Part.LineSegment(Vector(11.25, 7.5, 0), Vector(-11.25, 7.5, 0)), False)
sketch8.addGeometry(Part.LineSegment(Vector(-11.25, 7.5, 0), Vector(-11.25, 0.25, 0)), False)
sketch8.addGeometry(Part.LineSegment(Vector(-11.25, 0.25, 0), Vector(-12.25, 0.25, 0)), False)
sketch8.addGeometry(Part.LineSegment(Vector(-12.25, 0.25, 0), Vector(-12.25, 7.5, 0)), False)
sketch8.addGeometry(Part.LineSegment(Vector(-12.25, 7.5, 0), Vector(-15.25, 7.5, 0)), False)
sketch8.addConstraint(Sketcher.Constraint("Coincident", 0, 2, 1, 1))
sketch8.addConstraint(Sketcher.Constraint("Coincident", 1, 2, 2, 1))
sketch8.addConstraint(Sketcher.Constraint("Coincident", 2, 2, 3, 1))
sketch8.addConstraint(Sketcher.Constraint("Coincident", 3, 2, 4, 1))
sketch8.addConstraint(Sketcher.Constraint("Coincident", 4, 2, 5, 1))
sketch8.addConstraint(Sketcher.Constraint("Coincident", 5, 2, 6, 1))
sketch8.addConstraint(Sketcher.Constraint("Coincident", 6, 2, 7, 1))
sketch8.addConstraint(Sketcher.Constraint("Coincident", 7, 2, 8, 1))
sketch8.addConstraint(Sketcher.Constraint("Coincident", 8, 2, 9, 1))
sketch8.addConstraint(Sketcher.Constraint("Coincident", 9, 2, 10, 1))
sketch8.addConstraint(Sketcher.Constraint("Coincident", 10, 2, 11, 1))
sketch8.addConstraint(Sketcher.Constraint("Coincident", 11, 2, 12, 1))
sketch8.addConstraint(Sketcher.Constraint("Coincident", 12, 2, 13, 1))
sketch8.addConstraint(Sketcher.Constraint("Coincident", 13, 2, 14, 1))
sketch8.addConstraint(Sketcher.Constraint("Coincident", 14, 2, 15, 1))
sketch8.addConstraint(Sketcher.Constraint("Coincident", 15, 2, 0, 1))
sketch8.addConstraint(Sketcher.Constraint("Vertical", 0))
sketch8.addConstraint(Sketcher.Constraint("Horizontal", 1))
sketch8.addConstraint(Sketcher.Constraint("Vertical", 2))
sketch8.addConstraint(Sketcher.Constraint("Horizontal", 3))
sketch8.addConstraint(Sketcher.Constraint("Vertical", 4))
sketch8.addConstraint(Sketcher.Constraint("Horizontal", 5))
sketch8.addConstraint(Sketcher.Constraint("Vertical", 6))
sketch8.addConstraint(Sketcher.Constraint("Horizontal", 7))
sketch8.addConstraint(Sketcher.Constraint("Vertical", 8))
sketch8.addConstraint(Sketcher.Constraint("Horizontal", 9))
sketch8.addConstraint(Sketcher.Constraint("Vertical", 10))
sketch8.addConstraint(Sketcher.Constraint("Horizontal", 11))
sketch8.addConstraint(Sketcher.Constraint("Vertical", 12))
sketch8.addConstraint(Sketcher.Constraint("Horizontal", 13))
sketch8.addConstraint(Sketcher.Constraint("Vertical", 14))
sketch8.addConstraint(Sketcher.Constraint("Horizontal", 15))
sketch8.addConstraint(Sketcher.Constraint("Symmetric", 1, 2, 4, 2, -2))
sketch8.addConstraint(Sketcher.Constraint("Symmetric", 9, 2, 12, 2, -2))
sketch8.addConstraint(Sketcher.Constraint("Symmetric", 7, 2, 14, 2, -2))
sketch8.addConstraint(Sketcher.Constraint("Horizontal", 3, 2, 8, 2))
sketch8.addConstraint(Sketcher.Constraint("Horizontal", 7, 2, 10, 2))
sketch8.addConstraint(Sketcher.Constraint("Equal", 1, 5))
sketch8.addConstraint(Sketcher.Constraint("Equal", 11, 0))
sketch8.addConstraint(Sketcher.Constraint("Equal", 3, 2))
sketch8.addConstraint(Sketcher.Constraint("DistanceX", 7, 2, 7, 1, Q("3 mm")))
sketch8.addConstraint(Sketcher.Constraint("DistanceX", 9, 2, 9, 1, Q("1 mm")))
sketch8.addConstraint(Sketcher.Constraint("DistanceX", 11, 2, 11, 1, Q("22.5 mm")))
sketch8.addConstraint(Sketcher.Constraint("DistanceY", 0, 2, -1, 1, Q("15 mm")))
sketch8.addConstraint(Sketcher.Constraint("DistanceX", 3, 1, 3, 2, Q("15.25 mm")))
sketch8.setExpression("Constraints[40]", "Params.sketch8_width")
sketch8.setExpression("Constraints[41]", "Params.sketch8_width2")
sketch8.setExpression("Constraints[42]", "Params.sketch8_width3")
sketch8.setExpression("Constraints[44]", "Params.sketch8_width4")
pad8 = body14.newObject("PartDesign::Pad", "Pad007")
pad8.Profile = sketch8
pad8.setExpression("Length", "Params.pad8_length")
body15 = doc.addObject("PartDesign::Body", "Body014")
body15.AllowCompound = True
doc.recompute()

body14.Placement = App.Placement(Vector(0, 157.5, 0), App.Rotation(Vector(0, 0, 1), 0))
boolean7 = body15.newObject("PartDesign::Boolean", "Boolean006")
boolean7.Type = "Fuse"
boolean7.addObjects([body14])
doc.recompute()

boolean8 = body15.newObject("PartDesign::Boolean", "Boolean007")
boolean8.Type = "Cut"
boolean8.addObjects([body13])
body16 = doc.addObject("PartDesign::Body", "Body015")

# Sketch on XY plane
sketch9 = body16.newObject("Sketcher::SketchObject", "Sketch008")
sketch9.AttachmentSupport = (doc.getObject("XY_Plane015"), [""])
sketch9.MapMode = "FlatFace"
sketch9.addGeometry(Part.LineSegment(Vector(-15.25, 7.5, 0), Vector(-15.25, -15, 0)), False)
sketch9.addGeometry(Part.LineSegment(Vector(-15.25, -15, 0), Vector(-7.625, -15, 0)), False)
sketch9.addGeometry(Part.LineSegment(Vector(-7.625, -15, 0), Vector(-7.625, 0.25, 0)), False)
sketch9.addGeometry(Part.LineSegment(Vector(-7.625, 0.25, 0), Vector(7.625, 0.25, 0)), False)
sketch9.addGeometry(Part.LineSegment(Vector(7.625, 0.25, 0), Vector(7.625, -15, 0)), False)
sketch9.addGeometry(Part.LineSegment(Vector(7.625, -15, 0), Vector(15.25, -15, 0)), False)
sketch9.addGeometry(Part.LineSegment(Vector(15.25, -15, 0), Vector(15.25, 7.5, 0)), False)
sketch9.addGeometry(Part.LineSegment(Vector(15.25, 7.5, 0), Vector(12.25, 7.5, 0)), False)
sketch9.addGeometry(Part.LineSegment(Vector(12.25, 7.5, 0), Vector(12.25, 0.25, 0)), False)
sketch9.addGeometry(Part.LineSegment(Vector(12.25, 0.25, 0), Vector(11.25, 0.25, 0)), False)
sketch9.addGeometry(Part.LineSegment(Vector(11.25, 0.25, 0), Vector(11.25, 7.5, 0)), False)
sketch9.addGeometry(Part.LineSegment(Vector(11.25, 7.5, 0), Vector(-11.25, 7.5, 0)), False)
sketch9.addGeometry(Part.LineSegment(Vector(-11.25, 7.5, 0), Vector(-11.25, 0.25, 0)), False)
sketch9.addGeometry(Part.LineSegment(Vector(-11.25, 0.25, 0), Vector(-12.25, 0.25, 0)), False)
sketch9.addGeometry(Part.LineSegment(Vector(-12.25, 0.25, 0), Vector(-12.25, 7.5, 0)), False)
sketch9.addGeometry(Part.LineSegment(Vector(-12.25, 7.5, 0), Vector(-15.25, 7.5, 0)), False)
sketch9.addConstraint(Sketcher.Constraint("Coincident", 0, 2, 1, 1))
sketch9.addConstraint(Sketcher.Constraint("Coincident", 1, 2, 2, 1))
sketch9.addConstraint(Sketcher.Constraint("Coincident", 2, 2, 3, 1))
sketch9.addConstraint(Sketcher.Constraint("Coincident", 3, 2, 4, 1))
sketch9.addConstraint(Sketcher.Constraint("Coincident", 4, 2, 5, 1))
sketch9.addConstraint(Sketcher.Constraint("Coincident", 5, 2, 6, 1))
sketch9.addConstraint(Sketcher.Constraint("Coincident", 6, 2, 7, 1))
sketch9.addConstraint(Sketcher.Constraint("Coincident", 7, 2, 8, 1))
sketch9.addConstraint(Sketcher.Constraint("Coincident", 8, 2, 9, 1))
sketch9.addConstraint(Sketcher.Constraint("Coincident", 9, 2, 10, 1))
sketch9.addConstraint(Sketcher.Constraint("Coincident", 10, 2, 11, 1))
sketch9.addConstraint(Sketcher.Constraint("Coincident", 11, 2, 12, 1))
sketch9.addConstraint(Sketcher.Constraint("Coincident", 12, 2, 13, 1))
sketch9.addConstraint(Sketcher.Constraint("Coincident", 13, 2, 14, 1))
sketch9.addConstraint(Sketcher.Constraint("Coincident", 14, 2, 15, 1))
sketch9.addConstraint(Sketcher.Constraint("Coincident", 15, 2, 0, 1))
sketch9.addConstraint(Sketcher.Constraint("Vertical", 0))
sketch9.addConstraint(Sketcher.Constraint("Horizontal", 1))
sketch9.addConstraint(Sketcher.Constraint("Vertical", 2))
sketch9.addConstraint(Sketcher.Constraint("Horizontal", 3))
sketch9.addConstraint(Sketcher.Constraint("Vertical", 4))
sketch9.addConstraint(Sketcher.Constraint("Horizontal", 5))
sketch9.addConstraint(Sketcher.Constraint("Vertical", 6))
sketch9.addConstraint(Sketcher.Constraint("Horizontal", 7))
sketch9.addConstraint(Sketcher.Constraint("Vertical", 8))
sketch9.addConstraint(Sketcher.Constraint("Horizontal", 9))
sketch9.addConstraint(Sketcher.Constraint("Vertical", 10))
sketch9.addConstraint(Sketcher.Constraint("Horizontal", 11))
sketch9.addConstraint(Sketcher.Constraint("Vertical", 12))
sketch9.addConstraint(Sketcher.Constraint("Horizontal", 13))
sketch9.addConstraint(Sketcher.Constraint("Vertical", 14))
sketch9.addConstraint(Sketcher.Constraint("Horizontal", 15))
sketch9.addConstraint(Sketcher.Constraint("Symmetric", 1, 2, 4, 2, -2))
sketch9.addConstraint(Sketcher.Constraint("Symmetric", 9, 2, 12, 2, -2))
sketch9.addConstraint(Sketcher.Constraint("Symmetric", 7, 2, 14, 2, -2))
sketch9.addConstraint(Sketcher.Constraint("Horizontal", 3, 2, 8, 2))
sketch9.addConstraint(Sketcher.Constraint("Horizontal", 7, 2, 10, 2))
sketch9.addConstraint(Sketcher.Constraint("Equal", 1, 5))
sketch9.addConstraint(Sketcher.Constraint("Equal", 11, 0))
sketch9.addConstraint(Sketcher.Constraint("Equal", 3, 2))
sketch9.addConstraint(Sketcher.Constraint("DistanceX", 7, 2, 7, 1, Q("3 mm")))
sketch9.addConstraint(Sketcher.Constraint("DistanceX", 9, 2, 9, 1, Q("1 mm")))
sketch9.addConstraint(Sketcher.Constraint("DistanceX", 11, 2, 11, 1, Q("22.5 mm")))
sketch9.addConstraint(Sketcher.Constraint("DistanceY", 0, 2, -1, 1, Q("15 mm")))
sketch9.addConstraint(Sketcher.Constraint("DistanceX", 3, 1, 3, 2, Q("15.25 mm")))
sketch9.setExpression("Constraints[40]", "Params.sketch9_width")
sketch9.setExpression("Constraints[41]", "Params.sketch9_width2")
sketch9.setExpression("Constraints[42]", "Params.sketch9_width3")
sketch9.setExpression("Constraints[44]", "Params.sketch9_width4")
pad9 = body16.newObject("PartDesign::Pad", "Pad008")
pad9.Profile = sketch9
pad9.setExpression("Length", "Params.pad9_length")
doc.recompute()

boolean9 = body16.newObject("PartDesign::Boolean", "Boolean008")
boolean9.Type = "Fuse"
boolean9.addObjects([body2])
doc.recompute()

boolean10 = body16.newObject("PartDesign::Boolean", "Boolean009")
boolean10.Type = "Fuse"
boolean10.addObjects([body4])
doc.recompute()

boolean11 = body16.newObject("PartDesign::Boolean", "Boolean010")
boolean11.Type = "Fuse"
boolean11.addObjects([body6])
doc.recompute()

boolean12 = body16.newObject("PartDesign::Boolean", "Boolean011")
boolean12.Type = "Fuse"
boolean12.addObjects([body8])
doc.recompute()

boolean13 = body16.newObject("PartDesign::Boolean", "Boolean012")
boolean13.Type = "Fuse"
boolean13.addObjects([body10])
doc.recompute()

boolean14 = body16.newObject("PartDesign::Boolean", "Boolean013")
boolean14.Type = "Fuse"
boolean14.addObjects([body12])
doc.recompute()

boolean15 = body16.newObject("PartDesign::Boolean", "Boolean014")
boolean15.Type = "Fuse"
boolean15.addObjects([body15])
body17 = doc.addObject("PartDesign::Body", "Body016")
doc.recompute()

body16.Placement = App.Placement(Vector(0, -1.273, -56.4), App.Rotation(Vector(0, 0, 1), 0))
boolean16 = body17.newObject("PartDesign::Boolean", "Boolean015")
boolean16.Type = "Fuse"
boolean16.addObjects([body16])

doc.recompute()
